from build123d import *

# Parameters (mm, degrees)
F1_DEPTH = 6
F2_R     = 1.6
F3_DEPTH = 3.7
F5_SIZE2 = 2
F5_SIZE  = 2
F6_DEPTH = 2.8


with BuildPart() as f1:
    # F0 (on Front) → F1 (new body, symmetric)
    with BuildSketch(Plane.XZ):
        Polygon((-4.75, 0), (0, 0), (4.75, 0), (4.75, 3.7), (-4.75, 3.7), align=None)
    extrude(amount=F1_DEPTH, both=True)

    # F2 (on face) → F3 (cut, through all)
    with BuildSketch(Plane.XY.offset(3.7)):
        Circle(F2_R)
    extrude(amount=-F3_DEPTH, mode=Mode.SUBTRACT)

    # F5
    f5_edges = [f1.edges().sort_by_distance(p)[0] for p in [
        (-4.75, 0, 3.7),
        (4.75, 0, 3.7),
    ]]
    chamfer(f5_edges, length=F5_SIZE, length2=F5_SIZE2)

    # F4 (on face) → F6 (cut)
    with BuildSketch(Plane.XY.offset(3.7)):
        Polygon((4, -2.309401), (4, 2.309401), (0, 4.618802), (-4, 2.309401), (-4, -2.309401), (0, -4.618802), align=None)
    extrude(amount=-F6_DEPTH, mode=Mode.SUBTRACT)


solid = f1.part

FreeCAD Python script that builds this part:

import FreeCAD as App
import Part
import Sketcher
from FreeCAD import Vector
Q = App.Units.Quantity


def edges_at(feature, points):
    """Names of the edges that pass closest to the given points."""
    edges = feature.Shape.Edges
    near = lambda p: min(range(len(edges)), key=lambda i: edges[i].distToShape(Part.Vertex(*p))[0])
    return sorted({f"Edge{near(p) + 1}" for p in points})

doc = App.newDocument("Part")
body = doc.addObject("PartDesign::Body", "Body")

# Sketch on XZ plane
sketch1 = doc.addObject("Sketcher::SketchObject", "Sketch")
body.addObject(sketch1)
sketch1.AttachmentSupport = (doc.XZ_Plane, [""])
sketch1.MapMode = "FlatFace"
sketch1.addGeometry(Part.LineSegment(Vector(-4.8, 0, 0), Vector(4.8, 0, 0)), False)
sketch1.addGeometry(Part.LineSegment(Vector(4.8, 0, 0), Vector(4.8, 3.7, 0)), False)
sketch1.addGeometry(Part.LineSegment(Vector(4.8, 3.7, 0), Vector(-4.8, 3.7, 0)), False)
sketch1.addGeometry(Part.LineSegment(Vector(-4.8, 3.7, 0), Vector(-4.8, 0, 0)), False)
sketch1.addConstraint(Sketcher.Constraint("Coincident", 0, 2, 1, 1))
sketch1.addConstraint(Sketcher.Constraint("Coincident", 1, 2, 2, 1))
sketch1.addConstraint(Sketcher.Constraint("Coincident", 2, 2, 3, 1))
sketch1.addConstraint(Sketcher.Constraint("Coincident", 3, 2, 0, 1))
sketch1.addConstraint(Sketcher.Constraint("Horizontal", 0))
sketch1.addConstraint(Sketcher.Constraint("Vertical", 1))
sketch1.addConstraint(Sketcher.Constraint("Horizontal", 2))
sketch1.addConstraint(Sketcher.Constraint("Vertical", 3))
sketch1.addConstraint(Sketcher.Constraint("Symmetric", 0, 2, 3, 2, -1, 1))
sketch1.addConstraint(Sketcher.Constraint("DistanceX", 0, 1, 0, 2, 9.5))
sketch1.addConstraint(Sketcher.Constraint("DistanceY", 1, 1, 1, 2, 3.7))
pad1 = doc.addObject("PartDesign::Pad", "Pad")
body.addObject(pad1)
pad1.Profile = sketch1
pad1.Length = 12
pad1.Midplane = True

# Sketch on XY plane
sketch2 = doc.addObject("Sketcher::SketchObject", "Sketch001")
body.addObject(sketch2)
sketch2.AttachmentSupport = (doc.XY_Plane, [""])
sketch2.MapMode = "FlatFace"
sketch2.AttachmentOffset = App.Placement(Vector(0, 0, 3.7), App.Rotation())
sketch2.addGeometry(Part.Circle(Vector(0, 0, 0), Vector(0, 0, 1), 1.6), False)
sketch2.addConstraint(Sketcher.Constraint("Coincident", 0, 3, -1, 1))
sketch2.addConstraint(Sketcher.Constraint("Diameter", 0, 3.2))
pocket1 = doc.addObject("PartDesign::Pocket", "Pocket")
body.addObject(pocket1)
pocket1.Profile = sketch2
pocket1.Type = "ThroughAll"
doc.recompute()

chamfer = doc.addObject("PartDesign::Chamfer", "Chamfer")
body.addObject(chamfer)
chamfer.Base = (pocket1, edges_at(pocket1, [(-4.75, 0, 3.7), (4.75, 0, 3.7)]))
chamfer.ChamferType = "Two distances"
chamfer.Size = 2
chamfer.Size2 = 2

# Sketch on XY plane
sketch3 = doc.addObject("Sketcher::SketchObject", "Sketch002")
body.addObject(sketch3)
sketch3.AttachmentSupport = (doc.XY_Plane, [""])
sketch3.MapMode = "FlatFace"
sketch3.AttachmentOffset = App.Placement(Vector(0, 0, 3.7), App.Rotation())
sketch3.addGeometry(Part.LineSegment(Vector(4, -2.3, 0), Vector(4, 2.3, 0)), False)
sketch3.addGeometry(Part.LineSegment(Vector(4, 2.3, 0), Vector(0, 4.6, 0)), False)
sketch3.addGeometry(Part.LineSegment(Vector(0, 4.6, 0), Vector(-4, 2.3, 0)), False)
sketch3.addGeometry(Part.LineSegment(Vector(-4, 2.3, 0), Vector(-4, -2.3, 0)), False)
sketch3.addGeometry(Part.LineSegment(Vector(-4, -2.3, 0), Vector(0, -4.6, 0)), False)
sketch3.addGeometry(Part.LineSegment(Vector(0, -4.6, 0), Vector(4, -2.3, 0)), False)
sketch3.addConstraint(Sketcher.Constraint("Coincident", 0, 2, 1, 1))
sketch3.addConstraint(Sketcher.Constraint("Coincident", 1, 2, 2, 1))
sketch3.addConstraint(Sketcher.Constraint("Coincident", 2, 2, 3, 1))
sketch3.addConstraint(Sketcher.Constraint("Coincident", 3, 2, 4, 1))
sketch3.addConstraint(Sketcher.Constraint("Coincident", 4, 2, 5, 1))
sketch3.addConstraint(Sketcher.Constraint("Coincident", 5, 2, 0, 1))
sketch3.addConstraint(Sketcher.Constraint("Vertical", 0))
sketch3.addConstraint(Sketcher.Constraint("Vertical", 3))
sketch3.addConstraint(Sketcher.Constraint("Symmetric", 0, 2, 3, 2, -1, 1))
sketch3.addConstraint(Sketcher.Constraint("Symmetric", 1, 2, 4, 2, -1, 1))
sketch3.addConstraint(Sketcher.Constraint("PointOnObject", 1, 2, -2))
sketch3.addConstraint(Sketcher.Constraint("Parallel", 2, 5))
sketch3.addConstraint(Sketcher.Constraint("Horizontal", 0, 2, 2, 2))
sketch3.addConstraint(Sketcher.Constraint("Angle", 1, Q("150.000001 deg")))
sketch3.addConstraint(Sketcher.Constraint("DistanceX", -1, 1, 0, 2, 4.0))
sketch3.addConstraint(Sketcher.Constraint("DistanceY", 0, 1, 0, 2, 4.618802))
pocket2 = doc.addObject("PartDesign::Pocket", "Pocket001")
body.addObject(pocket2)
pocket2.Profile = sketch3
pocket2.Length = 2.8

doc.recompute()
